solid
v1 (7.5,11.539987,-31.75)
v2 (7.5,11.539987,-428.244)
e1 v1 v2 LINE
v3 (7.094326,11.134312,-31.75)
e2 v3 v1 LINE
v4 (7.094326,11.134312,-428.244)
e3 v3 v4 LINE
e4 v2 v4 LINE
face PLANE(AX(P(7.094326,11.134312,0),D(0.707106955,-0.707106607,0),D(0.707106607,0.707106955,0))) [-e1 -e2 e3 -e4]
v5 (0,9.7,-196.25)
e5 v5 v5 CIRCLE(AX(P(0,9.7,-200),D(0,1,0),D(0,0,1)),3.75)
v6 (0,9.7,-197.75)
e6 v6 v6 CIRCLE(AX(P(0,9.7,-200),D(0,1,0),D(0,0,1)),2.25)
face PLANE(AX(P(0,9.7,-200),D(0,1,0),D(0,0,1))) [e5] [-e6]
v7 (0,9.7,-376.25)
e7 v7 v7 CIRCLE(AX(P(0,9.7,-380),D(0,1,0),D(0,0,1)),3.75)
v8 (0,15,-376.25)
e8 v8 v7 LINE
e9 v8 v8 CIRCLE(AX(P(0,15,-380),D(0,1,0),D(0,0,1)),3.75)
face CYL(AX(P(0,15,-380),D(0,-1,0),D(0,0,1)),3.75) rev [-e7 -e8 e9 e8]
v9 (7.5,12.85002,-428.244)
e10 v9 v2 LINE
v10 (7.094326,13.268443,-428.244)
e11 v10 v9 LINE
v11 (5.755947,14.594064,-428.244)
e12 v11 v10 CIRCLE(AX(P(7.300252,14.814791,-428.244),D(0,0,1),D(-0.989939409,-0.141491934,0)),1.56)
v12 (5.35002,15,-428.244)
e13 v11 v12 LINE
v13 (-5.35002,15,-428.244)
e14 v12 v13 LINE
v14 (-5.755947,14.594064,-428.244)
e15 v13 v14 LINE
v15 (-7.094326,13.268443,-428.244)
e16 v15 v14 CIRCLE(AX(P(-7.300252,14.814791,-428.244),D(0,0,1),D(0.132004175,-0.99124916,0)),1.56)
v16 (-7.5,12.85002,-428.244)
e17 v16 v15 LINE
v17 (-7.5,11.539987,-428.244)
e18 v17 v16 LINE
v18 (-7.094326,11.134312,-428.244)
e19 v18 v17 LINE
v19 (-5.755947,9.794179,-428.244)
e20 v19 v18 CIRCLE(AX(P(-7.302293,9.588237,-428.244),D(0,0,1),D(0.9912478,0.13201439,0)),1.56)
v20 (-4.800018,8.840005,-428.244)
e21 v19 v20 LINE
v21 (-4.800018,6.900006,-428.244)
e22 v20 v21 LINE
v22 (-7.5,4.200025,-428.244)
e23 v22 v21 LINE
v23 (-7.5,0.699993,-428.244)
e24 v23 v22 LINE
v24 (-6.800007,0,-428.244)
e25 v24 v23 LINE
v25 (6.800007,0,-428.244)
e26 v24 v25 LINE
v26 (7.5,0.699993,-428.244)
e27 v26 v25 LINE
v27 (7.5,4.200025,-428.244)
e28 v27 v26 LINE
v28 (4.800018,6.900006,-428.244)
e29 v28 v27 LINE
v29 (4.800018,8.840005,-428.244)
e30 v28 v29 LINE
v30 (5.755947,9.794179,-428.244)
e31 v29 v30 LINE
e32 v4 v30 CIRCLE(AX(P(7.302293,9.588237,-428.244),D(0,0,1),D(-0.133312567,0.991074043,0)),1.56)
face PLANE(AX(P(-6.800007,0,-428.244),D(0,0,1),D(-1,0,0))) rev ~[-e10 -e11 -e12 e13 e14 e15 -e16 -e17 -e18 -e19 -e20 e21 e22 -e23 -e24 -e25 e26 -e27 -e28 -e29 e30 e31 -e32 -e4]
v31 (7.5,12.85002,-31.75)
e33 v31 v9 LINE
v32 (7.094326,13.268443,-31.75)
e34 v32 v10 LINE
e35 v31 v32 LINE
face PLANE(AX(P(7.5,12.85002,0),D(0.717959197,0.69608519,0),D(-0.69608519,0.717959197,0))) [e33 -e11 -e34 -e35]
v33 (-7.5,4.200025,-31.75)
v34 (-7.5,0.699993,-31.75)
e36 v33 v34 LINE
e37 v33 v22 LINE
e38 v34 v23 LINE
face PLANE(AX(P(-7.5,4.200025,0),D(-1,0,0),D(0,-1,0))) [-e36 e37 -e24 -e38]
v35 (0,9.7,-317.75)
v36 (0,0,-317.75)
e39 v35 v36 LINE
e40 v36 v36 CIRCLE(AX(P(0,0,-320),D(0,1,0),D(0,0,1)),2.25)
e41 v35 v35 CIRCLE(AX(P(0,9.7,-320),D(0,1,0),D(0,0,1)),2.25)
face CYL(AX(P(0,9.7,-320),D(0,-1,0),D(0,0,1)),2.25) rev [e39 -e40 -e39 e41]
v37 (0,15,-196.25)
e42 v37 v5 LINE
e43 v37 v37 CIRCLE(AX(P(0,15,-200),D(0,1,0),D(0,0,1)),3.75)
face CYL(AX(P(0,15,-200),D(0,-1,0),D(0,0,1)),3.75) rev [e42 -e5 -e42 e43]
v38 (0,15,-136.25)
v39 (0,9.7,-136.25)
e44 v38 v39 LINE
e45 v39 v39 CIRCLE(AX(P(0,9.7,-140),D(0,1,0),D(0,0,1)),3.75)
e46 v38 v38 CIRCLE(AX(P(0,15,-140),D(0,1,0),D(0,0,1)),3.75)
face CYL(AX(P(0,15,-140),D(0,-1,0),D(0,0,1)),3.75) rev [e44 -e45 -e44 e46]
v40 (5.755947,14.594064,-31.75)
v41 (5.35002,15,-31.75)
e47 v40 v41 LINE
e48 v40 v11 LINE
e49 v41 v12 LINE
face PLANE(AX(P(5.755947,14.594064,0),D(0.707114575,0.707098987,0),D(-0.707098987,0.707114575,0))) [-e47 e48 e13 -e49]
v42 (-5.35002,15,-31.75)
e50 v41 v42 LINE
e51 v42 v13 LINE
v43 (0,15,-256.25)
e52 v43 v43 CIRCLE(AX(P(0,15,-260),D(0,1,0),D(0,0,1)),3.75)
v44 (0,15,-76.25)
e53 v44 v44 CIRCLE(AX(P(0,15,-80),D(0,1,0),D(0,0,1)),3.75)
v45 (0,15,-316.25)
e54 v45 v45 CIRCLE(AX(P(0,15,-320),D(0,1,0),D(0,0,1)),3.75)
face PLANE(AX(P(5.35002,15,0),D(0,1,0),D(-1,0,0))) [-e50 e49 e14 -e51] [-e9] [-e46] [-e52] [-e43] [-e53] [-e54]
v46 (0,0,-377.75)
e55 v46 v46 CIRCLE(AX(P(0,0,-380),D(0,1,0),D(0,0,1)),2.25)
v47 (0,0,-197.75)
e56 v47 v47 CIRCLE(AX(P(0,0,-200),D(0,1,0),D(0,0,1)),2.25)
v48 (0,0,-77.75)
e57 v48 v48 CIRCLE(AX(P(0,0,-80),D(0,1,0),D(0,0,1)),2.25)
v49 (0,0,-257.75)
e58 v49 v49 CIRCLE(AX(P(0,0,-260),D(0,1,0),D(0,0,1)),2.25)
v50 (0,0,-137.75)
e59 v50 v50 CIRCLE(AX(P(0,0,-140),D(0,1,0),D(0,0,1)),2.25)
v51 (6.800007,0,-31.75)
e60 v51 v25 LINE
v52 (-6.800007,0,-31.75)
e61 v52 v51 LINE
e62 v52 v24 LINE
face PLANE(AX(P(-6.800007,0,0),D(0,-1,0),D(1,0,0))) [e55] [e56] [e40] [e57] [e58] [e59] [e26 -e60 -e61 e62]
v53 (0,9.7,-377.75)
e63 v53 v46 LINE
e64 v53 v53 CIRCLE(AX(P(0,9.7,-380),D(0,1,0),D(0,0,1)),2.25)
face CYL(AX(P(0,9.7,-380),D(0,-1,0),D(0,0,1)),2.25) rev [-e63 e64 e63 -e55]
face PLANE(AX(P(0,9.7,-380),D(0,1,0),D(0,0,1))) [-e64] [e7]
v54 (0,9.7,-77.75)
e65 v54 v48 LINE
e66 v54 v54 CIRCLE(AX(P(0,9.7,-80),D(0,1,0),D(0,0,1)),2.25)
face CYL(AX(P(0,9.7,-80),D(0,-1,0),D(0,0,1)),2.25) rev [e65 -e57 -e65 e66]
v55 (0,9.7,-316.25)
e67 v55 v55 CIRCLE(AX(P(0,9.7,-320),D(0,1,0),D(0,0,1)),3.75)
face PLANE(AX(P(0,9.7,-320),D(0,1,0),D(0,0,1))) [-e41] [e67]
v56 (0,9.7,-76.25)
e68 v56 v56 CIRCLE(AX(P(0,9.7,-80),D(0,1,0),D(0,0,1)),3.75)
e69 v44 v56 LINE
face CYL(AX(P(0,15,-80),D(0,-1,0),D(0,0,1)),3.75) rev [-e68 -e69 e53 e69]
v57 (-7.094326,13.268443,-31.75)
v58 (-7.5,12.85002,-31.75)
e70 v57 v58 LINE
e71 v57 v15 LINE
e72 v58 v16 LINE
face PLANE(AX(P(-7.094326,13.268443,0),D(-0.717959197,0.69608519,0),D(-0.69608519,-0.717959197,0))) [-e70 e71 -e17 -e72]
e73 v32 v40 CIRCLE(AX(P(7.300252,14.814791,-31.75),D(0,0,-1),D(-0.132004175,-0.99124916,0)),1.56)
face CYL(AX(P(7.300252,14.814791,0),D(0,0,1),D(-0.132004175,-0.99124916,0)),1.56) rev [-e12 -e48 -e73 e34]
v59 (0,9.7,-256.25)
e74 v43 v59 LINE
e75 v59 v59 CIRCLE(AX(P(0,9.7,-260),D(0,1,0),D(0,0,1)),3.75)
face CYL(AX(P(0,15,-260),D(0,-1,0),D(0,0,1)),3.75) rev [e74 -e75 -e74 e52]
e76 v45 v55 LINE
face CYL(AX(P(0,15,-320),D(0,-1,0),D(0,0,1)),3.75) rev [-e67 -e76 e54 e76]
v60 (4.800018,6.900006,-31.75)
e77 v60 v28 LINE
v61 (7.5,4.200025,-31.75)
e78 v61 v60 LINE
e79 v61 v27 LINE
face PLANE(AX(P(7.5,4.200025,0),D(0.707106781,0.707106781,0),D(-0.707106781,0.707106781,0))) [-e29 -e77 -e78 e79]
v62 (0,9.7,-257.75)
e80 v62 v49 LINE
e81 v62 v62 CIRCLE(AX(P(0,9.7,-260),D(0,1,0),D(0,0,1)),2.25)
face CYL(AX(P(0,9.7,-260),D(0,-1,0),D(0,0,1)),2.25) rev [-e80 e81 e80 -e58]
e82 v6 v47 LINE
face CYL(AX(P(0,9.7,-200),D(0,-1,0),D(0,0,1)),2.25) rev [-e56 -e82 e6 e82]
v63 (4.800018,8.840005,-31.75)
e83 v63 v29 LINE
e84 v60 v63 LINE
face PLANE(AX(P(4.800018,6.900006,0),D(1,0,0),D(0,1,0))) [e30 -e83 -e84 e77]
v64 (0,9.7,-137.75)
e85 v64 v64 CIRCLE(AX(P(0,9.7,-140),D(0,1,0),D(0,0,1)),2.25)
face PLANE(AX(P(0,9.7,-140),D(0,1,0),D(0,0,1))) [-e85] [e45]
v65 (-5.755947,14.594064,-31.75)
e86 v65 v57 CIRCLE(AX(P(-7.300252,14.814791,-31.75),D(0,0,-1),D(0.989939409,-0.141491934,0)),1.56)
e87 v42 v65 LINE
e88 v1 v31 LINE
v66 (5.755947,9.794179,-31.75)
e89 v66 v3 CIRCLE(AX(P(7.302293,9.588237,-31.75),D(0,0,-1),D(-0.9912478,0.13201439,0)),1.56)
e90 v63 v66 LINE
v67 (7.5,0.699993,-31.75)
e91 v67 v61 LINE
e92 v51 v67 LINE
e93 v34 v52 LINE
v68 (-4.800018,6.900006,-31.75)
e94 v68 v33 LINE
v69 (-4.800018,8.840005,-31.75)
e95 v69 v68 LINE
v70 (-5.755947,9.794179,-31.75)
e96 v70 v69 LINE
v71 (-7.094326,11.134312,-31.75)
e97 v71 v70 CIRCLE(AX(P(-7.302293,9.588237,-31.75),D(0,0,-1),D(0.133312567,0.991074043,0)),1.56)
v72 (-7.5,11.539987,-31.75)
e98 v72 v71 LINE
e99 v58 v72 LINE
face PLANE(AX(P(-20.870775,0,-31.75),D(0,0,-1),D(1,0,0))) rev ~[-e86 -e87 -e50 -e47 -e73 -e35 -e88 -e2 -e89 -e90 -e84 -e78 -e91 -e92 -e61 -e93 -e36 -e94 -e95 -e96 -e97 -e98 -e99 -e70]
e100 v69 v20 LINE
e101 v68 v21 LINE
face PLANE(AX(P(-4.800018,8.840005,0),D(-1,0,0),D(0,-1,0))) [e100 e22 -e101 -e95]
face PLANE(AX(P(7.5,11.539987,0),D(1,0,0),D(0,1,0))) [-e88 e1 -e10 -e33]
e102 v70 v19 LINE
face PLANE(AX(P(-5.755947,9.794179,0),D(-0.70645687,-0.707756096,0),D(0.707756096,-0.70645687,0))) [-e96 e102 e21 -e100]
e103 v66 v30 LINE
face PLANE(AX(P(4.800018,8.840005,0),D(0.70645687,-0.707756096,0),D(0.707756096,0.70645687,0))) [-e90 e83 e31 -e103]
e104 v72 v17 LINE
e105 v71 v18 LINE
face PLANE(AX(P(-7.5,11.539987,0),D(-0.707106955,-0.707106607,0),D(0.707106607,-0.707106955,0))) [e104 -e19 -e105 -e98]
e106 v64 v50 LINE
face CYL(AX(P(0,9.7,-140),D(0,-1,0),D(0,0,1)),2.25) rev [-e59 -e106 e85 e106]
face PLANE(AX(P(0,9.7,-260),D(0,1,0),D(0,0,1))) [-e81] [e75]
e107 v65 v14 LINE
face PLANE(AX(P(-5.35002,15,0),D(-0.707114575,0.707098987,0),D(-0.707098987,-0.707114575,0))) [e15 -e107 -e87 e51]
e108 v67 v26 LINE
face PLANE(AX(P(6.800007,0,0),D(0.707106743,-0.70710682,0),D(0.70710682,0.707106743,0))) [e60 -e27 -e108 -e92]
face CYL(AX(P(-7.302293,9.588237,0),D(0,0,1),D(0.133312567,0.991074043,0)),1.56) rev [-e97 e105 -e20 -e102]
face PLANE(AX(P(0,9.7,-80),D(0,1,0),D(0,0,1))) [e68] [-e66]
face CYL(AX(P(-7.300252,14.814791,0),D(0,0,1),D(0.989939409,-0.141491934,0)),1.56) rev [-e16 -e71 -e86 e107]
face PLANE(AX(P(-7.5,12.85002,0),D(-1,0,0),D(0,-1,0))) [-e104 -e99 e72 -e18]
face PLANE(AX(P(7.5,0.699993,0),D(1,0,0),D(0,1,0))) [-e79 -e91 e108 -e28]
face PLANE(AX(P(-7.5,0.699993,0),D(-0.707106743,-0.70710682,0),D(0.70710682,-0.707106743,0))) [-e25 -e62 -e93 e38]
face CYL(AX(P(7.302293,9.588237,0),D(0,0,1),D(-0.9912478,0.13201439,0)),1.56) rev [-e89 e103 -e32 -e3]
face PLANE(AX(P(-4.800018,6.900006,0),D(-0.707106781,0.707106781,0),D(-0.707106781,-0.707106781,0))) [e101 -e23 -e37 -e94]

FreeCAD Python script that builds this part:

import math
import FreeCAD as App
import Part
import Sketcher
from FreeCAD import Vector

doc = App.newDocument("Part")
body = doc.addObject("PartDesign::Body", "Body")

# Sketch on XY plane
sketch1 = body.newObject("Sketcher::SketchObject", "Sketch")
sketch1.AttachmentSupport = (doc.getObject("XY_Plane"), [""])
sketch1.MapMode = "FlatFace"
sketch1.addGeometry(Part.LineSegment(Vector(-7.5, 0.7, 0), Vector(-6.8, 0, 0)), False)
sketch1.addGeometry(Part.LineSegment(Vector(-6.8, 0, 0), Vector(6.8, 0, 0)), False)
sketch1.addGeometry(Part.LineSegment(Vector(6.8, 0, 0), Vector(7.5, 0.7, 0)), False)
sketch1.addGeometry(Part.LineSegment(Vector(7.5, 0.7, 0), Vector(7.5, 4.2, 0)), False)
sketch1.addGeometry(Part.LineSegment(Vector(7.5, 4.2, 0), Vector(4.8, 6.9, 0)), False)
sketch1.addGeometry(Part.LineSegment(Vector(4.8, 6.9, 0), Vector(4.8, 8.8, 0)), False)
sketch1.addGeometry(Part.LineSegment(Vector(4.8, 8.8, 0), Vector(5.8, 9.8, 0)), False)
sketch1.addGeometry(Part.ArcOfCircle(Part.Circle(Vector(7.3, 9.6, 0), Vector(0, 0, 1), 1.6), math.radians(98), math.radians(172)), False)
sketch1.addGeometry(Part.LineSegment(Vector(7.1, 11.1, 0), Vector(7.5, 11.5, 0)), False)
sketch1.addGeometry(Part.LineSegment(Vector(7.5, 11.5, 0), Vector(7.5, 12.9, 0)), False)
sketch1.addGeometry(Part.LineSegment(Vector(7.5, 12.9, 0), Vector(7.1, 13.3, 0)), False)
sketch1.addGeometry(Part.ArcOfCircle(Part.Circle(Vector(7.3, 14.8, 0), Vector(0, 0, 1), 1.6), math.radians(-172), math.radians(-98)), False)
sketch1.addGeometry(Part.LineSegment(Vector(5.8, 14.6, 0), Vector(5.4, 15, 0)), False)
sketch1.addGeometry(Part.LineSegment(Vector(5.4, 15, 0), Vector(-5.4, 15, 0)), False)
sketch1.addGeometry(Part.LineSegment(Vector(-5.4, 15, 0), Vector(-5.8, 14.6, 0)), False)
sketch1.addGeometry(Part.ArcOfCircle(Part.Circle(Vector(-7.3, 14.8, 0), Vector(0, 0, 1), 1.6), math.radians(-82), math.radians(-8)), False)
sketch1.addGeometry(Part.LineSegment(Vector(-7.1, 13.3, 0), Vector(-7.5, 12.9, 0)), False)
sketch1.addGeometry(Part.LineSegment(Vector(-7.5, 12.9, 0), Vector(-7.5, 11.5, 0)), False)
sketch1.addGeometry(Part.LineSegment(Vector(-7.5, 11.5, 0), Vector(-7.1, 11.1, 0)), False)
sketch1.addGeometry(Part.ArcOfCircle(Part.Circle(Vector(-7.3, 9.6, 0), Vector(0, 0, 1), 1.6), math.radians(8), math.radians(82)), False)
sketch1.addGeometry(Part.LineSegment(Vector(-5.8, 9.8, 0), Vector(-4.8, 8.8, 0)), False)
sketch1.addGeometry(Part.LineSegment(Vector(-4.8, 8.8, 0), Vector(-4.8, 6.9, 0)), False)
sketch1.addGeometry(Part.LineSegment(Vector(-4.8, 6.9, 0), Vector(-7.5, 4.2, 0)), False)
sketch1.addGeometry(Part.LineSegment(Vector(-7.5, 4.2, 0), Vector(-7.5, 0.7, 0)), False)
sketch1.addConstraint(Sketcher.Constraint("Coincident", 0, 2, 1, 1))
sketch1.addConstraint(Sketcher.Constraint("Coincident", 1, 2, 2, 1))
sketch1.addConstraint(Sketcher.Constraint("Coincident", 2, 2, 3, 1))
sketch1.addConstraint(Sketcher.Constraint("Coincident", 3, 2, 4, 1))
sketch1.addConstraint(Sketcher.Constraint("Coincident", 4, 2, 5, 1))
sketch1.addConstraint(Sketcher.Constraint("Coincident", 5, 2, 6, 1))
sketch1.addConstraint(Sketcher.Constraint("Coincident", 6, 2, 7, 2))
sketch1.addConstraint(Sketcher.Constraint("Coincident", 7, 1, 8, 1))
sketch1.addConstraint(Sketcher.Constraint("Coincident", 8, 2, 9, 1))
sketch1.addConstraint(Sketcher.Constraint("Coincident", 9, 2, 10, 1))
sketch1.addConstraint(Sketcher.Constraint("Coincident", 10, 2, 11, 2))
sketch1.addConstraint(Sketcher.Constraint("Coincident", 11, 1, 12, 1))
sketch1.addConstraint(Sketcher.Constraint("Coincident", 12, 2, 13, 1))
sketch1.addConstraint(Sketcher.Constraint("Coincident", 13, 2, 14, 1))
sketch1.addConstraint(Sketcher.Constraint("Coincident", 14, 2, 15, 2))
sketch1.addConstraint(Sketcher.Constraint("Coincident", 15, 1, 16, 1))
sketch1.addConstraint(Sketcher.Constraint("Coincident", 16, 2, 17, 1))
sketch1.addConstraint(Sketcher.Constraint("Coincident", 17, 2, 18, 1))
sketch1.addConstraint(Sketcher.Constraint("Coincident", 18, 2, 19, 2))
sketch1.addConstraint(Sketcher.Constraint("Coincident", 19, 1, 20, 1))
sketch1.addConstraint(Sketcher.Constraint("Coincident", 20, 2, 21, 1))
sketch1.addConstraint(Sketcher.Constraint("Coincident", 21, 2, 22, 1))
sketch1.addConstraint(Sketcher.Constraint("Coincident", 22, 2, 23, 1))
sketch1.addConstraint(Sketcher.Constraint("Coincident", 23, 2, 0, 1))
sketch1.addConstraint(Sketcher.Constraint("Horizontal", 1))
sketch1.addConstraint(Sketcher.Constraint("Vertical", 3))
sketch1.addConstraint(Sketcher.Constraint("Vertical", 5))
sketch1.addConstraint(Sketcher.Constraint("Vertical", 9))
sketch1.addConstraint(Sketcher.Constraint("Horizontal", 13))
sketch1.addConstraint(Sketcher.Constraint("Vertical", 17))
sketch1.addConstraint(Sketcher.Constraint("Vertical", 21))
sketch1.addConstraint(Sketcher.Constraint("Vertical", 23))
sketch1.addConstraint(Sketcher.Constraint("Equal", 7, 11))
sketch1.addConstraint(Sketcher.Constraint("Equal", 11, 15))
sketch1.addConstraint(Sketcher.Constraint("Equal", 15, 19))
sketch1.addConstraint(Sketcher.Constraint("Symmetric", 0, 2, 1, 2, -1, 1))
sketch1.addConstraint(Sketcher.Constraint("Symmetric", 11, 3, 15, 3, -2))
sketch1.addConstraint(Sketcher.Constraint("Symmetric", 7, 3, 19, 3, -2))
sketch1.addConstraint(Sketcher.Constraint("Symmetric", 9, 2, 16, 2, -2))
sketch1.addConstraint(Sketcher.Constraint("Symmetric", 5, 2, 20, 2, -2))
sketch1.addConstraint(Sketcher.Constraint("Symmetric", 3, 2, 22, 2, -2))
sketch1.addConstraint(Sketcher.Constraint("Perpendicular", 0, 2))
sketch1.addConstraint(Sketcher.Constraint("Perpendicular", 2, 4))
sketch1.addConstraint(Sketcher.Constraint("Perpendicular", 4, 8))
sketch1.addConstraint(Sketcher.Constraint("Perpendicular", 8, 18))
sketch1.addConstraint(Sketcher.Constraint("Perpendicular", 18, 22))
sketch1.addConstraint(Sketcher.Constraint("Horizontal", 11, 1, 14, 2))
sketch1.addConstraint(Sketcher.Constraint("Horizontal", 10, 2, 15, 1))
sketch1.addConstraint(Sketcher.Constraint("Horizontal", 8, 2, 17, 2))
sketch1.addConstraint(Sketcher.Constraint("Horizontal", 7, 1, 18, 2))
sketch1.addConstraint(Sketcher.Constraint("Horizontal", 6, 2, 19, 1))
sketch1.addConstraint(Sketcher.Constraint("Vertical", 3, 2, 8, 2))
sketch1.addConstraint(Sketcher.Constraint("Vertical", 7, 1, 10, 2))
sketch1.addConstraint(Sketcher.Constraint("Vertical", 6, 2, 11, 1))
sketch1.addConstraint(Sketcher.Constraint("Equal", 12, 14))
sketch1.addConstraint(Sketcher.Constraint("Radius", 7, 1.56))
sketch1.addConstraint(Sketcher.Constraint("DistanceY", -1, 1, 12, 2, 15.0))
sketch1.addConstraint(Sketcher.Constraint("DistanceY", 5, 1, 5, 2, 1.939999))
sketch1.addConstraint(Sketcher.Constraint("DistanceX", -1, 1, 2, 2, 7.5))
sketch1.addConstraint(Sketcher.Constraint("DistanceX", 13, 2, 13, 1, 10.700039))
sketch1.addConstraint(Sketcher.Constraint("DistanceY", 3, 1, 3, 2, 3.500032))
sketch1.addConstraint(Sketcher.Constraint("DistanceX", 0, 2, 7, 3, 14.1023))
sketch1.addConstraint(Sketcher.Constraint("DistanceY", 2, 2, 11, 3, 14.114799))
sketch1.addConstraint(Sketcher.Constraint("Distance", 0, 0.989939))
sketch1.addConstraint(Sketcher.Constraint("Distance", 4, 3.818351))
sketch1.addConstraint(Sketcher.Constraint("Distance", 8, 0.57371))
sketch1.addConstraint(Sketcher.Constraint("DistanceY", 9, 1, 9, 2, 1.310034))
sketch1.addConstraint(Sketcher.Constraint("DistanceY", -1, 1, 6, 2, 9.794179))
sketch1.addConstraint(Sketcher.Constraint("DistanceY", -1, 1, 9, 2, 12.85002))
sketch1.addConstraint(Sketcher.Constraint("DistanceX", 11, 3, 7, 3, 0.002041))
pad1 = body.newObject("PartDesign::Pad", "Pad")
pad1.Profile = sketch1
pad1.Length = 460
pad1.Reversed = True

# Sketch on YZ plane
sketch2 = body.newObject("Sketcher::SketchObject", "Sketch001")
sketch2.AttachmentSupport = (doc.getObject("YZ_Plane"), [""])
sketch2.MapMode = "FlatFace"
sketch2.addGeometry(Part.LineSegment(Vector(15, -23.8, 0), Vector(15, -20, 0)), False)
sketch2.addGeometry(Part.LineSegment(Vector(15, -20, 0), Vector(0, -20, 0)), False)
sketch2.addGeometry(Part.LineSegment(Vector(0, -20, 0), Vector(0, -22.2, 0)), False)
sketch2.addGeometry(Part.LineSegment(Vector(0, -22.2, 0), Vector(9.7, -22.2, 0)), False)
sketch2.addGeometry(Part.LineSegment(Vector(9.7, -22.2, 0), Vector(9.7, -23.8, 0)), False)
sketch2.addGeometry(Part.LineSegment(Vector(9.7, -23.8, 0), Vector(15, -23.8, 0)), False)
sketch2.addGeometry(Part.LineSegment(Vector(0, -20, 0), Vector(15, -20, 0)), True)  # axis
sketch2.addConstraint(Sketcher.Constraint("Coincident", 0, 2, 1, 1))
sketch2.addConstraint(Sketcher.Constraint("Coincident", 1, 2, 2, 1))
sketch2.addConstraint(Sketcher.Constraint("Coincident", 2, 2, 3, 1))
sketch2.addConstraint(Sketcher.Constraint("Coincident", 3, 2, 4, 1))
sketch2.addConstraint(Sketcher.Constraint("Coincident", 4, 2, 5, 1))
sketch2.addConstraint(Sketcher.Constraint("Coincident", 5, 2, 0, 1))
sketch2.addConstraint(Sketcher.Constraint("Vertical", 0))
sketch2.addConstraint(Sketcher.Constraint("Horizontal", 1))
sketch2.addConstraint(Sketcher.Constraint("Vertical", 2))
sketch2.addConstraint(Sketcher.Constraint("Horizontal", 3))
sketch2.addConstraint(Sketcher.Constraint("Vertical", 4))
sketch2.addConstraint(Sketcher.Constraint("Horizontal", 5))
sketch2.addConstraint(Sketcher.Constraint("Horizontal", 6))
sketch2.addConstraint(Sketcher.Constraint("Coincident", 6, 1, 1, 2))
sketch2.addConstraint(Sketcher.Constraint("PointOnObject", 1, 2, -2))
sketch2.addConstraint(Sketcher.Constraint("Vertical", 5, 2, 6, 2))
sketch2.addConstraint(Sketcher.Constraint("DistanceX", 1, 2, 1, 1, 15.0))
sketch2.addConstraint(Sketcher.Constraint("DistanceX", 3, 1, 3, 2, 9.7))
sketch2.addConstraint(Sketcher.Constraint("DistanceY", 4, 2, 4, 1, 1.5))
sketch2.addConstraint(Sketcher.Constraint("DistanceY", 0, 2, -1, 1, 20.0))
sketch2.addConstraint(Sketcher.Constraint("DistanceY", 0, 1, 0, 2, 3.75))
groove = body.newObject("PartDesign::Groove", "Groove")
groove.Profile = sketch2
groove.ReferenceAxis = (sketch2, ["Axis0"])
groove.Angle = 360
doc.recompute()

linearpattern = body.newObject("PartDesign::LinearPattern", "LinearPattern")
linearpattern.Originals = [groove]
linearpattern.Direction = (doc.getObject("Z_Axis"), [""])
linearpattern.Mode = "offset"
linearpattern.Offset = 60
linearpattern.Occurrences = 8
linearpattern.Reversed = True
body.Tip = linearpattern

# Sketch on XZ plane
sketch3 = body.newObject("Sketcher::SketchObject", "Sketch002")
sketch3.AttachmentSupport = (doc.getObject("XZ_Plane"), [""])
sketch3.MapMode = "FlatFace"
sketch3.addGeometry(Part.LineSegment(Vector(14.5, -428.2, 0), Vector(-17.2, -428.2, 0)), False)
sketch3.addGeometry(Part.LineSegment(Vector(-17.2, -428.2, 0), Vector(-17.2, -476, 0)), False)
sketch3.addGeometry(Part.LineSegment(Vector(-17.2, -476, 0), Vector(14.5, -476, 0)), False)
sketch3.addGeometry(Part.LineSegment(Vector(14.5, -476, 0), Vector(14.5, -428.2, 0)), False)
sketch3.addGeometry(Part.Circle(Vector(0, -440, 0), Vector(0, 0, 1), 2.2), False)
sketch3.addGeometry(Part.LineSegment(Vector(-20.9, 0, 0), Vector(-20.9, -31.8, 0)), False)
sketch3.addGeometry(Part.LineSegment(Vector(-20.9, -31.8, 0), Vector(14.5, -31.8, 0)), False)
sketch3.addGeometry(Part.LineSegment(Vector(14.5, -31.8, 0), Vector(14.5, 0, 0)), False)
sketch3.addGeometry(Part.LineSegment(Vector(14.5, 0, 0), Vector(-20.9, 0, 0)), False)
sketch3.addGeometry(Part.Circle(Vector(0, -20, 0), Vector(0, 0, 1), 2.2), False)
sketch3.addConstraint(Sketcher.Constraint("Coincident", 0, 2, 1, 1))
sketch3.addConstraint(Sketcher.Constraint("Coincident", 1, 2, 2, 1))
sketch3.addConstraint(Sketcher.Constraint("Coincident", 2, 2, 3, 1))
sketch3.addConstraint(Sketcher.Constraint("Coincident", 3, 2, 0, 1))
sketch3.addConstraint(Sketcher.Constraint("Coincident", 5, 2, 6, 1))
sketch3.addConstraint(Sketcher.Constraint("Coincident", 6, 2, 7, 1))
sketch3.addConstraint(Sketcher.Constraint("Coincident", 7, 2, 8, 1))
sketch3.addConstraint(Sketcher.Constraint("Coincident", 8, 2, 5, 1))
sketch3.addConstraint(Sketcher.Constraint("Horizontal", 0))
sketch3.addConstraint(Sketcher.Constraint("Vertical", 1))
sketch3.addConstraint(Sketcher.Constraint("Horizontal", 2))
sketch3.addConstraint(Sketcher.Constraint("Vertical", 3))
sketch3.addConstraint(Sketcher.Constraint("Vertical", 5))
sketch3.addConstraint(Sketcher.Constraint("Horizontal", 6))
sketch3.addConstraint(Sketcher.Constraint("Vertical", 7))
sketch3.addConstraint(Sketcher.Constraint("Horizontal", 8))
sketch3.addConstraint(Sketcher.Constraint("Equal", 4, 9))
sketch3.addConstraint(Sketcher.Constraint("PointOnObject", 4, 3, -2))
sketch3.addConstraint(Sketcher.Constraint("PointOnObject", 9, 3, -2))
sketch3.addConstraint(Sketcher.Constraint("PointOnObject", 7, 2, -1))
sketch3.addConstraint(Sketcher.Constraint("Vertical", 3, 2, 6, 2))
sketch3.addConstraint(Sketcher.Constraint("Diameter", 4, 4.5))
sketch3.addConstraint(Sketcher.Constraint("DistanceY", 4, 3, -1, 1, 440.0))
sketch3.addConstraint(Sketcher.Constraint("DistanceY", 9, 3, -1, 1, 20.0))
sketch3.addConstraint(Sketcher.Constraint("DistanceY", 5, 2, 5, 1, 31.75))
sketch3.addConstraint(Sketcher.Constraint("DistanceY", 0, 2, -1, 1, 428.244))
sketch3.addConstraint(Sketcher.Constraint("DistanceX", 0, 2, 0, 1, 31.665058))
sketch3.addConstraint(Sketcher.Constraint("DistanceX", 6, 1, 6, 2, 35.372121))
sketch3.addConstraint(Sketcher.Constraint("DistanceY", 1, 2, 1, 1, 47.763492))
sketch3.addConstraint(Sketcher.Constraint("DistanceX", 0, 2, -1, 1, 17.163711))
pocket1 = body.newObject("PartDesign::Pocket", "Pocket")
pocket1.Profile = sketch3
pocket1.Length = 461.305605

doc.recompute()
